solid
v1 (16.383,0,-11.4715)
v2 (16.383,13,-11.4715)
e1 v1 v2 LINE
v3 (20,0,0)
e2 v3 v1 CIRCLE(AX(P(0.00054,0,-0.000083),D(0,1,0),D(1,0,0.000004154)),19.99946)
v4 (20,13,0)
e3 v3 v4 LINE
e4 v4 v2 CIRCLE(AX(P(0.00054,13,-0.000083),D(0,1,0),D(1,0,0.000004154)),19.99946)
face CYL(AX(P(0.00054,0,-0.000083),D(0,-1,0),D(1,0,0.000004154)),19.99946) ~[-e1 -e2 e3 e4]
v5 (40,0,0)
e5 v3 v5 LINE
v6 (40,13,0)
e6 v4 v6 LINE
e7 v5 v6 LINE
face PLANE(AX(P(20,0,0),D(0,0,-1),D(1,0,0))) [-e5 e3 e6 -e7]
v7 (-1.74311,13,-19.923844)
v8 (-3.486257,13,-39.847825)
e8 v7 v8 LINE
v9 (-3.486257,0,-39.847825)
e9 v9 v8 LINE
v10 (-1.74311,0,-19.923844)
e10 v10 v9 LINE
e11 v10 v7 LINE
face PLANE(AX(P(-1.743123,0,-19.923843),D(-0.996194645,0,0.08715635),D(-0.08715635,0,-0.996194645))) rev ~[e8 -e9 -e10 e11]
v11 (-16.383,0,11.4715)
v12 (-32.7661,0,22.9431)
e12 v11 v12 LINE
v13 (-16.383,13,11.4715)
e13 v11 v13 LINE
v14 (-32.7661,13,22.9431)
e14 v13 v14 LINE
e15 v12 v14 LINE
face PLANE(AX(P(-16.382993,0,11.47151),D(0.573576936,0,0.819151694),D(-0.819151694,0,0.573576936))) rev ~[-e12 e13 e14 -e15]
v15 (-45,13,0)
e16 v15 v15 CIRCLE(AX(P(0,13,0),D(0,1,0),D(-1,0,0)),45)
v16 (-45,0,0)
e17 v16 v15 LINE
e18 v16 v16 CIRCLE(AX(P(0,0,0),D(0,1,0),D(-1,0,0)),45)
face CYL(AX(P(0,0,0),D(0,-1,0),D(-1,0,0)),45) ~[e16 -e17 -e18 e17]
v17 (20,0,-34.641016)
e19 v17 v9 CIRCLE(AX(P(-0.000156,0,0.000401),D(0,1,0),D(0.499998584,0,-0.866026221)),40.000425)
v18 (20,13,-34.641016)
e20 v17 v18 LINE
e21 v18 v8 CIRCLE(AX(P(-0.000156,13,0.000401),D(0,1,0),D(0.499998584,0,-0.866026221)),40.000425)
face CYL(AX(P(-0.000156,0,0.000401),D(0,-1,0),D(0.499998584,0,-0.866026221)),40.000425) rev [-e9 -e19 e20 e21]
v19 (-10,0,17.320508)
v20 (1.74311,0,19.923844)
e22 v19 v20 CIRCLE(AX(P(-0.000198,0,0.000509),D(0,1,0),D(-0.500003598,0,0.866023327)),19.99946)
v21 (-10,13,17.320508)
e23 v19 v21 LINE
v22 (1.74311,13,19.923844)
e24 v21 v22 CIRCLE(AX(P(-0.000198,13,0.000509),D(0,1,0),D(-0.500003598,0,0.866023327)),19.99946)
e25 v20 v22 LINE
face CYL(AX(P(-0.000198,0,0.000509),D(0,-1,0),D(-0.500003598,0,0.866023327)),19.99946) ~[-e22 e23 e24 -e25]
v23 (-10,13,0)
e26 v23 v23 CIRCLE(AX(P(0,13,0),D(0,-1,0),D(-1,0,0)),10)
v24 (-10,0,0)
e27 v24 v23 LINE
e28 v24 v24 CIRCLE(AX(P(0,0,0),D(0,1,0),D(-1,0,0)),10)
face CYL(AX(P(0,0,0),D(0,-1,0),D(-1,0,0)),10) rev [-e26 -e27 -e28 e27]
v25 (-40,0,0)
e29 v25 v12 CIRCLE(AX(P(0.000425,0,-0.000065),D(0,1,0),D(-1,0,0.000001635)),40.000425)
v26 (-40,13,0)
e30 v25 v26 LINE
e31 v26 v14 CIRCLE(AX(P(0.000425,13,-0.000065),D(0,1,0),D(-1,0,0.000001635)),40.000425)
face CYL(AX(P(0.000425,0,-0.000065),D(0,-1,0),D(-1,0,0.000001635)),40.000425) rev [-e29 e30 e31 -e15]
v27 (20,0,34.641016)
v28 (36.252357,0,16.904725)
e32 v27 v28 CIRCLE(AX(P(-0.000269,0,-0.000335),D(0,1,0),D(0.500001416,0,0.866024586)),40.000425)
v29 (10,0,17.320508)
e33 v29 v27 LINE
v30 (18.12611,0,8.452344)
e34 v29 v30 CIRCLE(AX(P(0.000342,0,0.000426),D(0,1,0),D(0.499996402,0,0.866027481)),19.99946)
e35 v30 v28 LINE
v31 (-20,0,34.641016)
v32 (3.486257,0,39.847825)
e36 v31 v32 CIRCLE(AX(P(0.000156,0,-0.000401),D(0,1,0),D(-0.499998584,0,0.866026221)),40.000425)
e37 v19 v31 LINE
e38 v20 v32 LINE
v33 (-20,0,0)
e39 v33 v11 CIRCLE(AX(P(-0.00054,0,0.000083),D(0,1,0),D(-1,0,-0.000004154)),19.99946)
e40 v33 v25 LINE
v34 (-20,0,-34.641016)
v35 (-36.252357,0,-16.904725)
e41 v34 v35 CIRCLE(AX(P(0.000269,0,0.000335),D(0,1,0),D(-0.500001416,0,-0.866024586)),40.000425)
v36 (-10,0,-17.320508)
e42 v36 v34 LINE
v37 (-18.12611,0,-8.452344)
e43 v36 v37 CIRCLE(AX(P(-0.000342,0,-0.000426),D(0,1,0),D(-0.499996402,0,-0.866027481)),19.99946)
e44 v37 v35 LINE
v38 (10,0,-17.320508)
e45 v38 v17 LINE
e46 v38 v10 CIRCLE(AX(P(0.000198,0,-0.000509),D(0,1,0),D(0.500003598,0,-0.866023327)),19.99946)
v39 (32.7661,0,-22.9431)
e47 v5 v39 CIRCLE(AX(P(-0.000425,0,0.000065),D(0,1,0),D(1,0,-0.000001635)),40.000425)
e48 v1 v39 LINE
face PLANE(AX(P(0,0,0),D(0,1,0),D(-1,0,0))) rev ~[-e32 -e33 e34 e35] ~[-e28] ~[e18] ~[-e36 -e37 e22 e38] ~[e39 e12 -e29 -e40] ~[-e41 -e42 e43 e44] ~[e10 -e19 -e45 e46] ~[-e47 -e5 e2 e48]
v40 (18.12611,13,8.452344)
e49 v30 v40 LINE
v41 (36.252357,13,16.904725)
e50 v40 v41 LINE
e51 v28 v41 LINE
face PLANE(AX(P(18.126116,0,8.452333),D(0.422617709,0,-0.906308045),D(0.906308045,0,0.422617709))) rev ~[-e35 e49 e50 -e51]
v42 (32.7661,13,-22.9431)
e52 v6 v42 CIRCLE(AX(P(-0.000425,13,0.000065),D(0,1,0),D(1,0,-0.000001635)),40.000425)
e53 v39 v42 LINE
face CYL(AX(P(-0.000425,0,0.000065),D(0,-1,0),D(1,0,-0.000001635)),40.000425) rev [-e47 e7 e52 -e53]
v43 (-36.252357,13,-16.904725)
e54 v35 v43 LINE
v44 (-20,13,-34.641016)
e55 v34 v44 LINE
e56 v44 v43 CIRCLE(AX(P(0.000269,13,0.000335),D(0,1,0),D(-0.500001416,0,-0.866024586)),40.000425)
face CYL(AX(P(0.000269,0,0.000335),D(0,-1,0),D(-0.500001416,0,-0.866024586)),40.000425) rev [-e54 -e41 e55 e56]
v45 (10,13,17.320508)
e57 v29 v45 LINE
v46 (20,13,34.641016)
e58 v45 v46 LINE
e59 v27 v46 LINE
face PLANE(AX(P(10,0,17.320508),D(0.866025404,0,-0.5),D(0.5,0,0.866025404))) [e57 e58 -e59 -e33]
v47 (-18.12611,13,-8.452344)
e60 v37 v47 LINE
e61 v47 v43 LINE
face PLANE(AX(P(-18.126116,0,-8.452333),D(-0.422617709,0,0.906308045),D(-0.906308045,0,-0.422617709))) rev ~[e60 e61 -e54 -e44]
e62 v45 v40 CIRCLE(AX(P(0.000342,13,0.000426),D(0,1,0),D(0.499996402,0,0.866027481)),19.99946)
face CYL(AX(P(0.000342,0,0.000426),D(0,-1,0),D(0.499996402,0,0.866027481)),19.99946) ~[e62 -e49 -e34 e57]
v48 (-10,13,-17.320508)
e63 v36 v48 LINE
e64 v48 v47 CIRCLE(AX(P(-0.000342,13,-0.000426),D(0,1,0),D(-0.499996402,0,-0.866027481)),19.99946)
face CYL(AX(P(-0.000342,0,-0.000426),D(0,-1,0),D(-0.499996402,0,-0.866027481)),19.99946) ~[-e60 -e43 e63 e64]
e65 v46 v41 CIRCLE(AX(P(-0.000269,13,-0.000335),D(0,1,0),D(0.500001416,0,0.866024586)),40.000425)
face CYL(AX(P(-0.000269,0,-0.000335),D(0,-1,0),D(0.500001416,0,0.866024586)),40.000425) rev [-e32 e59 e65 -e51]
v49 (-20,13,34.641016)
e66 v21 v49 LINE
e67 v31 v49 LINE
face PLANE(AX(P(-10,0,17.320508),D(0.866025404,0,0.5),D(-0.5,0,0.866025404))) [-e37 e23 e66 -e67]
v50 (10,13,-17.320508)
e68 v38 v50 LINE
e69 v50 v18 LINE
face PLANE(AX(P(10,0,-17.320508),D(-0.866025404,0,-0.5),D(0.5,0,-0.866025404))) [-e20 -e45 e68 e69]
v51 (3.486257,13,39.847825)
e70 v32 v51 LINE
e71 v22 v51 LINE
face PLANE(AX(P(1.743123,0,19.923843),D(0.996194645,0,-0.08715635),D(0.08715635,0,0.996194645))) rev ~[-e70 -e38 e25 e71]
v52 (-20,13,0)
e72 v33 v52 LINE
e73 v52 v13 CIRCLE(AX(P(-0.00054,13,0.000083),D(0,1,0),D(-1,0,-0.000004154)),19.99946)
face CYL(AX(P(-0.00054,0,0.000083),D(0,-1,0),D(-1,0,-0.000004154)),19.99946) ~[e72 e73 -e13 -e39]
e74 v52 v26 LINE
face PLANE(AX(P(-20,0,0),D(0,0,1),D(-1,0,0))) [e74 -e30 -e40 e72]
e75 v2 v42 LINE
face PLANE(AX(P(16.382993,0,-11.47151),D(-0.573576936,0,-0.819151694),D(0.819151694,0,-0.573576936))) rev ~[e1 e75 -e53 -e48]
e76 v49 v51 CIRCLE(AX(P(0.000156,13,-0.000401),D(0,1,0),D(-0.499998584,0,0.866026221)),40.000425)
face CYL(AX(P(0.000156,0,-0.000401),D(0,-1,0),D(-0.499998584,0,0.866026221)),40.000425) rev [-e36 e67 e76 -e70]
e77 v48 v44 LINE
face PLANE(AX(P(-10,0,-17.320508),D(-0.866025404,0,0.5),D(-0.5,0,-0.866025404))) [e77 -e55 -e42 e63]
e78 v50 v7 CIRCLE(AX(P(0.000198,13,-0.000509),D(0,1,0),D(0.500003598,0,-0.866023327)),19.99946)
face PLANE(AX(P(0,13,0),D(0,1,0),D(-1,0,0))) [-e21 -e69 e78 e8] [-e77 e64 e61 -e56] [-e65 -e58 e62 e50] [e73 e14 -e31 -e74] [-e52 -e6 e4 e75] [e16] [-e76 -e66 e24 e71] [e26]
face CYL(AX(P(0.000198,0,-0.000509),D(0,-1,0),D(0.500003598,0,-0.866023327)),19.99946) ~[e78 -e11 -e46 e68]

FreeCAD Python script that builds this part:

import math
import FreeCAD as App
import Part
import Sketcher
from FreeCAD import Vector
Q = App.Units.Quantity

doc = App.newDocument("Part")
body = doc.addObject("PartDesign::Body", "Body")

sketch1 = body.newObject("Sketcher::SketchObject", "Sketch")
sketch1.AttachmentSupport = (doc.getObject("XZ_Plane"), [""])
sketch1.MapMode = "FlatFace"
sketch1.addGeometry(Part.Circle(Vector(0, 0, 0), Vector(0, 0, 1), 45), False)
sketch1.addConstraint([
    Sketcher.Constraint("Coincident", 0, 3, -1, 1),
    Sketcher.Constraint("Diameter", 0, 90.0),
])
pad1 = body.newObject("PartDesign::Pad", "Pad")
pad1.Profile = sketch1
pad1.Length = 13
pad1.Reversed = True

sketch2 = body.newObject("Sketcher::SketchObject", "Sketch001")
sketch2.AttachmentSupport = (doc.getObject("XZ_Plane"), [""])
sketch2.MapMode = "FlatFace"
sketch2.addGeometry([
    Part.Circle(Vector(0, 0, 0), Vector(0, 0, 1), 10),
    Part.ArcOfCircle(Part.Circle(Vector(0, 0, 0), Vector(0, 0, 1), 20), math.radians(-35), math.radians(0)),
    Part.LineSegment(Vector(20, 0, 0), Vector(40, 0, 0)),
    Part.ArcOfCircle(Part.Circle(Vector(0, 0, 0), Vector(0, 0, 1), 40), math.radians(-35), math.radians(0)),
    Part.LineSegment(Vector(33, -23, 0), Vector(16, -11, 0)),
], False)
sketch2.addConstraint([
    Sketcher.Constraint("Coincident", 1, 2, 2, 1),
    Sketcher.Constraint("Coincident", 2, 2, 3, 2),
    Sketcher.Constraint("Coincident", 3, 1, 4, 1),
    Sketcher.Constraint("Coincident", 4, 2, 1, 1),
    Sketcher.Constraint("Horizontal", 2),
    Sketcher.Constraint("Coincident", 0, 3, -1, 1),
    Sketcher.Constraint("Coincident", 1, 3, -1, 1),
    Sketcher.Constraint("Coincident", 3, 3, -1, 1),
    Sketcher.Constraint("PointOnObject", 1, 2, -1),
    Sketcher.Constraint("Diameter", 0, 20.0),
    Sketcher.Constraint("Radius", 1, 20.0),
    Sketcher.Constraint("Radius", 3, 40.0),
    Sketcher.Constraint("Angle", 4, Q("145 deg")),
    Sketcher.Constraint("DistanceX", -1, 1, 3, 1, 32.766),
])
pocket1 = body.newObject("PartDesign::Pocket", "Pocket")
pocket1.Profile = sketch2
pocket1.Length = 13
doc.recompute()

polarpattern = body.newObject("PartDesign::PolarPattern", "PolarPattern")
polarpattern.Originals = [pocket1]
polarpattern.Axis = (doc.getObject("Y_Axis"), [""])
polarpattern.Angle = 360
polarpattern.Occurrences = 6
body.Tip = polarpattern

doc.recompute()
